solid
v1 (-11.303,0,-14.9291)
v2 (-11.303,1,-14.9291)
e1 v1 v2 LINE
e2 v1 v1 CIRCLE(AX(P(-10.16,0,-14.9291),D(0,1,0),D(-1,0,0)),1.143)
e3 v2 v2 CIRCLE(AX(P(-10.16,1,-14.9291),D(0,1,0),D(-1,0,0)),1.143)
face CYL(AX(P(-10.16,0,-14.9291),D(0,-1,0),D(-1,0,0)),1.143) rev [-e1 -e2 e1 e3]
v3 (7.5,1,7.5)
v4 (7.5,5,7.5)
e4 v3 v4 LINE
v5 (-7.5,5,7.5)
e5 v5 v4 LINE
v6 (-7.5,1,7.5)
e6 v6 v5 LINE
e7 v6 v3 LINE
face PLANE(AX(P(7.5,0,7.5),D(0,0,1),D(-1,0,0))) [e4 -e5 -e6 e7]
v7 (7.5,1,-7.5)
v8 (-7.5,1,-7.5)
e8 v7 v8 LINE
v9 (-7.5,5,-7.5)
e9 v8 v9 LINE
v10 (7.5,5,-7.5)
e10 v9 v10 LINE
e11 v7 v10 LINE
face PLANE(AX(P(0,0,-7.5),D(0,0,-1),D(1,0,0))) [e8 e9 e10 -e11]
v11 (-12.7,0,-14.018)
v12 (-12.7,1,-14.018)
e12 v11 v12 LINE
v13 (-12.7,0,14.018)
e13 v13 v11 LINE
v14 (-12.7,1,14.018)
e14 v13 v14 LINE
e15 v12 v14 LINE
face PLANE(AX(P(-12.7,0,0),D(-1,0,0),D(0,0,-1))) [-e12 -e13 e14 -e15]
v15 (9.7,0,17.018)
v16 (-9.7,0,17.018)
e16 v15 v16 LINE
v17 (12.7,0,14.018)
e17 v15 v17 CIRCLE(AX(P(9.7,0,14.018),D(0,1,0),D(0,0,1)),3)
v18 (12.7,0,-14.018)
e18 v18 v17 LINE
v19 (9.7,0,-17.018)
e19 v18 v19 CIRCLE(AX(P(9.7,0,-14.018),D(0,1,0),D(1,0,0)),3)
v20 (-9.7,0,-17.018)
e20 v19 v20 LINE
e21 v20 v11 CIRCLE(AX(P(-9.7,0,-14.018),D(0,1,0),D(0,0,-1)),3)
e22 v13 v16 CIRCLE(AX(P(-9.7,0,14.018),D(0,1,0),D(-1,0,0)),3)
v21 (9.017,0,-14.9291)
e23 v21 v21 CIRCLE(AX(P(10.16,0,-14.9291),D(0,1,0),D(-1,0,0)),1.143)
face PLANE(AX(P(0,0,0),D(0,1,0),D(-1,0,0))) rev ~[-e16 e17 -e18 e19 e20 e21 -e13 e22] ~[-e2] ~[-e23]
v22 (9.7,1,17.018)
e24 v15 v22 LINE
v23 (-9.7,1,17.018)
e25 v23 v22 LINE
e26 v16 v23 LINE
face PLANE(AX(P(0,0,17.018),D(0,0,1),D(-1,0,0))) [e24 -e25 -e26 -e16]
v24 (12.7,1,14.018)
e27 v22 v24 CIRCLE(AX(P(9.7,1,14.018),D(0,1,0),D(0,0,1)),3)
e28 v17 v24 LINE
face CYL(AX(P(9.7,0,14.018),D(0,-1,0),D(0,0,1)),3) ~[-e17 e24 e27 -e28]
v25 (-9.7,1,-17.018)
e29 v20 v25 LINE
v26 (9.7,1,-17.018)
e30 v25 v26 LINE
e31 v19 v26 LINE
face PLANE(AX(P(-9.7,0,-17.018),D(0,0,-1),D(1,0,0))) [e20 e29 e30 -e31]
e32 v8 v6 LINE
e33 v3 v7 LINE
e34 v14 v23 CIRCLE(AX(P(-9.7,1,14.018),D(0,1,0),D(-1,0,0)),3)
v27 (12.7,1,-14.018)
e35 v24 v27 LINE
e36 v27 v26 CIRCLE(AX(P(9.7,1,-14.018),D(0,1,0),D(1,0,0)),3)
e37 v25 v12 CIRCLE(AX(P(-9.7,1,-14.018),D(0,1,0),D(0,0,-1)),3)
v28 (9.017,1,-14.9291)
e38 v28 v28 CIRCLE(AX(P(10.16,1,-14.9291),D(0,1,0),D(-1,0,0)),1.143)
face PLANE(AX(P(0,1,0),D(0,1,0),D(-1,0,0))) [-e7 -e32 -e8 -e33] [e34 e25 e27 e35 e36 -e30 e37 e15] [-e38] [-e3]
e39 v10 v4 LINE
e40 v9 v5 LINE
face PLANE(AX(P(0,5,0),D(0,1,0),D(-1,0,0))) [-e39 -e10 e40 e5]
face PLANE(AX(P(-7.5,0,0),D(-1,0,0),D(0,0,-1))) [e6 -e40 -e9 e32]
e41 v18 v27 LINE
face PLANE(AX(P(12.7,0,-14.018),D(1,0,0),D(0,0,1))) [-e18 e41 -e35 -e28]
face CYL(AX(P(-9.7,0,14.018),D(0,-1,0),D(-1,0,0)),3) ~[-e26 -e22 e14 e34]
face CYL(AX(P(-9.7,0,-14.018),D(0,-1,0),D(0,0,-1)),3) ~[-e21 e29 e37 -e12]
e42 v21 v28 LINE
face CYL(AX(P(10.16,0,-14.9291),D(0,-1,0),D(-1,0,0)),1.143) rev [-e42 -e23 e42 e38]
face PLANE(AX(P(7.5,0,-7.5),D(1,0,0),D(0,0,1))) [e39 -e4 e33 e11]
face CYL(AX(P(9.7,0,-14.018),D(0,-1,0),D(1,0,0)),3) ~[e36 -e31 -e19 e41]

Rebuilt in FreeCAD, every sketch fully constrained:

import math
import FreeCAD as App
import Part
import Sketcher


def add_polygon(sketch, points):
    """Adds a closed chain of lines whose ends are joined by coincident constraints."""
    first, n = sketch.GeometryCount, len(points)
    for a, b in zip(points, points[1:] + points[:1]):
        sketch.addGeometry(Part.LineSegment(App.Vector(*a, 0), App.Vector(*b, 0)), False)
    for i in range(n):
        sketch.addConstraint(Sketcher.Constraint("Coincident", first + i, 2, first + (i + 1) % n, 1))

doc = App.newDocument("Part")
body = doc.addObject("PartDesign::Body", "Body")

sketch1 = body.newObject("Sketcher::SketchObject", "Sketch")
sketch1.AttachmentSupport = (doc.getObject("XZ_Plane"), [""])
sketch1.MapMode = "FlatFace"
sketch1.addGeometry([
    Part.ArcOfCircle(Part.Circle(App.Vector(-9.7, -14.018, 0), App.Vector(0, 0, 1), 3), math.radians(180), math.radians(270)),
    Part.LineSegment(App.Vector(-12.7, -14.018, 0), App.Vector(-12.7, 14.018, 0)),
    Part.ArcOfCircle(Part.Circle(App.Vector(-9.7, 14.018, 0), App.Vector(0, 0, 1), 3), math.radians(90), math.radians(180)),
    Part.LineSegment(App.Vector(-9.7, 17.018, 0), App.Vector(9.7, 17.018, 0)),
    Part.ArcOfCircle(Part.Circle(App.Vector(9.7, 14.018, 0), App.Vector(0, 0, 1), 3), math.radians(0), math.radians(90)),
    Part.LineSegment(App.Vector(12.7, 14.018, 0), App.Vector(12.7, -14.018, 0)),
    Part.ArcOfCircle(Part.Circle(App.Vector(9.7, -14.018, 0), App.Vector(0, 0, 1), 3), math.radians(-90), math.radians(0)),
    Part.LineSegment(App.Vector(9.7, -17.018, 0), App.Vector(-9.7, -17.018, 0)),
    Part.Circle(App.Vector(-10.16, -14.9291, 0), App.Vector(0, 0, 1), 1.143),
    Part.Circle(App.Vector(10.16, -14.9291, 0), App.Vector(0, 0, 1), 1.143),
], False)
sketch1.addConstraint([
    Sketcher.Constraint("Tangent", 0, 1, 1, 1),
    Sketcher.Constraint("Tangent", 1, 2, 2, 2),
    Sketcher.Constraint("Tangent", 2, 1, 3, 1),
    Sketcher.Constraint("Tangent", 3, 2, 4, 2),
    Sketcher.Constraint("Tangent", 4, 1, 5, 1),
    Sketcher.Constraint("Tangent", 5, 2, 6, 2),
    Sketcher.Constraint("Tangent", 6, 1, 7, 1),
    Sketcher.Constraint("Tangent", 7, 2, 0, 2),
    Sketcher.Constraint("Vertical", 1),
    Sketcher.Constraint("Horizontal", 3),
    Sketcher.Constraint("Vertical", 5),
    Sketcher.Constraint("Horizontal", 7),
    Sketcher.Constraint("Equal", 0, 2),
    Sketcher.Constraint("Equal", 2, 4),
    Sketcher.Constraint("Equal", 4, 6),
    Sketcher.Constraint("Equal", 8, 9),
    Sketcher.Constraint("Symmetric", 0, 3, 4, 3, -1, 1),
    Sketcher.Constraint("Symmetric", 8, 3, 9, 3, -2),
    Sketcher.Constraint("Radius", 0, 3.0),
    Sketcher.Constraint("Diameter", 8, 2.286),
    Sketcher.Constraint("DistanceX", 1, 2, 4, 1, 25.4),
    Sketcher.Constraint("DistanceX", 8, 3, 9, 3, 20.32),
    Sketcher.Constraint("DistanceY", 1, 1, 1, 2, 28.036),
    Sketcher.Constraint("DistanceY", 8, 3, -1, 1, 14.929),
])
pad1 = body.newObject("PartDesign::Pad", "Pad")
pad1.Profile = sketch1
pad1.Length = 1
pad1.Reversed = True

sketch2 = body.newObject("Sketcher::SketchObject", "Sketch001")
sketch2.AttachmentSupport = (doc.getObject("XZ_Plane"), [""])
sketch2.MapMode = "FlatFace"
add_polygon(sketch2, [(7.5, -7.5), (-7.5, -7.5), (-7.5, 7.5), (7.5, 7.5)])
sketch2.addConstraint([
    Sketcher.Constraint("Horizontal", 0),
    Sketcher.Constraint("Vertical", 1),
    Sketcher.Constraint("Horizontal", 2),
    Sketcher.Constraint("Vertical", 3),
    Sketcher.Constraint("Symmetric", 0, 2, 2, 2, -1, 1),
    Sketcher.Constraint("Equal", 2, 1),
    Sketcher.Constraint("DistanceX", 0, 2, 0, 1, 15.0),
])
pad2 = body.newObject("PartDesign::Pad", "Pad001")
pad2.Profile = sketch2
pad2.Length = 5
pad2.Reversed = True

doc.recompute()
